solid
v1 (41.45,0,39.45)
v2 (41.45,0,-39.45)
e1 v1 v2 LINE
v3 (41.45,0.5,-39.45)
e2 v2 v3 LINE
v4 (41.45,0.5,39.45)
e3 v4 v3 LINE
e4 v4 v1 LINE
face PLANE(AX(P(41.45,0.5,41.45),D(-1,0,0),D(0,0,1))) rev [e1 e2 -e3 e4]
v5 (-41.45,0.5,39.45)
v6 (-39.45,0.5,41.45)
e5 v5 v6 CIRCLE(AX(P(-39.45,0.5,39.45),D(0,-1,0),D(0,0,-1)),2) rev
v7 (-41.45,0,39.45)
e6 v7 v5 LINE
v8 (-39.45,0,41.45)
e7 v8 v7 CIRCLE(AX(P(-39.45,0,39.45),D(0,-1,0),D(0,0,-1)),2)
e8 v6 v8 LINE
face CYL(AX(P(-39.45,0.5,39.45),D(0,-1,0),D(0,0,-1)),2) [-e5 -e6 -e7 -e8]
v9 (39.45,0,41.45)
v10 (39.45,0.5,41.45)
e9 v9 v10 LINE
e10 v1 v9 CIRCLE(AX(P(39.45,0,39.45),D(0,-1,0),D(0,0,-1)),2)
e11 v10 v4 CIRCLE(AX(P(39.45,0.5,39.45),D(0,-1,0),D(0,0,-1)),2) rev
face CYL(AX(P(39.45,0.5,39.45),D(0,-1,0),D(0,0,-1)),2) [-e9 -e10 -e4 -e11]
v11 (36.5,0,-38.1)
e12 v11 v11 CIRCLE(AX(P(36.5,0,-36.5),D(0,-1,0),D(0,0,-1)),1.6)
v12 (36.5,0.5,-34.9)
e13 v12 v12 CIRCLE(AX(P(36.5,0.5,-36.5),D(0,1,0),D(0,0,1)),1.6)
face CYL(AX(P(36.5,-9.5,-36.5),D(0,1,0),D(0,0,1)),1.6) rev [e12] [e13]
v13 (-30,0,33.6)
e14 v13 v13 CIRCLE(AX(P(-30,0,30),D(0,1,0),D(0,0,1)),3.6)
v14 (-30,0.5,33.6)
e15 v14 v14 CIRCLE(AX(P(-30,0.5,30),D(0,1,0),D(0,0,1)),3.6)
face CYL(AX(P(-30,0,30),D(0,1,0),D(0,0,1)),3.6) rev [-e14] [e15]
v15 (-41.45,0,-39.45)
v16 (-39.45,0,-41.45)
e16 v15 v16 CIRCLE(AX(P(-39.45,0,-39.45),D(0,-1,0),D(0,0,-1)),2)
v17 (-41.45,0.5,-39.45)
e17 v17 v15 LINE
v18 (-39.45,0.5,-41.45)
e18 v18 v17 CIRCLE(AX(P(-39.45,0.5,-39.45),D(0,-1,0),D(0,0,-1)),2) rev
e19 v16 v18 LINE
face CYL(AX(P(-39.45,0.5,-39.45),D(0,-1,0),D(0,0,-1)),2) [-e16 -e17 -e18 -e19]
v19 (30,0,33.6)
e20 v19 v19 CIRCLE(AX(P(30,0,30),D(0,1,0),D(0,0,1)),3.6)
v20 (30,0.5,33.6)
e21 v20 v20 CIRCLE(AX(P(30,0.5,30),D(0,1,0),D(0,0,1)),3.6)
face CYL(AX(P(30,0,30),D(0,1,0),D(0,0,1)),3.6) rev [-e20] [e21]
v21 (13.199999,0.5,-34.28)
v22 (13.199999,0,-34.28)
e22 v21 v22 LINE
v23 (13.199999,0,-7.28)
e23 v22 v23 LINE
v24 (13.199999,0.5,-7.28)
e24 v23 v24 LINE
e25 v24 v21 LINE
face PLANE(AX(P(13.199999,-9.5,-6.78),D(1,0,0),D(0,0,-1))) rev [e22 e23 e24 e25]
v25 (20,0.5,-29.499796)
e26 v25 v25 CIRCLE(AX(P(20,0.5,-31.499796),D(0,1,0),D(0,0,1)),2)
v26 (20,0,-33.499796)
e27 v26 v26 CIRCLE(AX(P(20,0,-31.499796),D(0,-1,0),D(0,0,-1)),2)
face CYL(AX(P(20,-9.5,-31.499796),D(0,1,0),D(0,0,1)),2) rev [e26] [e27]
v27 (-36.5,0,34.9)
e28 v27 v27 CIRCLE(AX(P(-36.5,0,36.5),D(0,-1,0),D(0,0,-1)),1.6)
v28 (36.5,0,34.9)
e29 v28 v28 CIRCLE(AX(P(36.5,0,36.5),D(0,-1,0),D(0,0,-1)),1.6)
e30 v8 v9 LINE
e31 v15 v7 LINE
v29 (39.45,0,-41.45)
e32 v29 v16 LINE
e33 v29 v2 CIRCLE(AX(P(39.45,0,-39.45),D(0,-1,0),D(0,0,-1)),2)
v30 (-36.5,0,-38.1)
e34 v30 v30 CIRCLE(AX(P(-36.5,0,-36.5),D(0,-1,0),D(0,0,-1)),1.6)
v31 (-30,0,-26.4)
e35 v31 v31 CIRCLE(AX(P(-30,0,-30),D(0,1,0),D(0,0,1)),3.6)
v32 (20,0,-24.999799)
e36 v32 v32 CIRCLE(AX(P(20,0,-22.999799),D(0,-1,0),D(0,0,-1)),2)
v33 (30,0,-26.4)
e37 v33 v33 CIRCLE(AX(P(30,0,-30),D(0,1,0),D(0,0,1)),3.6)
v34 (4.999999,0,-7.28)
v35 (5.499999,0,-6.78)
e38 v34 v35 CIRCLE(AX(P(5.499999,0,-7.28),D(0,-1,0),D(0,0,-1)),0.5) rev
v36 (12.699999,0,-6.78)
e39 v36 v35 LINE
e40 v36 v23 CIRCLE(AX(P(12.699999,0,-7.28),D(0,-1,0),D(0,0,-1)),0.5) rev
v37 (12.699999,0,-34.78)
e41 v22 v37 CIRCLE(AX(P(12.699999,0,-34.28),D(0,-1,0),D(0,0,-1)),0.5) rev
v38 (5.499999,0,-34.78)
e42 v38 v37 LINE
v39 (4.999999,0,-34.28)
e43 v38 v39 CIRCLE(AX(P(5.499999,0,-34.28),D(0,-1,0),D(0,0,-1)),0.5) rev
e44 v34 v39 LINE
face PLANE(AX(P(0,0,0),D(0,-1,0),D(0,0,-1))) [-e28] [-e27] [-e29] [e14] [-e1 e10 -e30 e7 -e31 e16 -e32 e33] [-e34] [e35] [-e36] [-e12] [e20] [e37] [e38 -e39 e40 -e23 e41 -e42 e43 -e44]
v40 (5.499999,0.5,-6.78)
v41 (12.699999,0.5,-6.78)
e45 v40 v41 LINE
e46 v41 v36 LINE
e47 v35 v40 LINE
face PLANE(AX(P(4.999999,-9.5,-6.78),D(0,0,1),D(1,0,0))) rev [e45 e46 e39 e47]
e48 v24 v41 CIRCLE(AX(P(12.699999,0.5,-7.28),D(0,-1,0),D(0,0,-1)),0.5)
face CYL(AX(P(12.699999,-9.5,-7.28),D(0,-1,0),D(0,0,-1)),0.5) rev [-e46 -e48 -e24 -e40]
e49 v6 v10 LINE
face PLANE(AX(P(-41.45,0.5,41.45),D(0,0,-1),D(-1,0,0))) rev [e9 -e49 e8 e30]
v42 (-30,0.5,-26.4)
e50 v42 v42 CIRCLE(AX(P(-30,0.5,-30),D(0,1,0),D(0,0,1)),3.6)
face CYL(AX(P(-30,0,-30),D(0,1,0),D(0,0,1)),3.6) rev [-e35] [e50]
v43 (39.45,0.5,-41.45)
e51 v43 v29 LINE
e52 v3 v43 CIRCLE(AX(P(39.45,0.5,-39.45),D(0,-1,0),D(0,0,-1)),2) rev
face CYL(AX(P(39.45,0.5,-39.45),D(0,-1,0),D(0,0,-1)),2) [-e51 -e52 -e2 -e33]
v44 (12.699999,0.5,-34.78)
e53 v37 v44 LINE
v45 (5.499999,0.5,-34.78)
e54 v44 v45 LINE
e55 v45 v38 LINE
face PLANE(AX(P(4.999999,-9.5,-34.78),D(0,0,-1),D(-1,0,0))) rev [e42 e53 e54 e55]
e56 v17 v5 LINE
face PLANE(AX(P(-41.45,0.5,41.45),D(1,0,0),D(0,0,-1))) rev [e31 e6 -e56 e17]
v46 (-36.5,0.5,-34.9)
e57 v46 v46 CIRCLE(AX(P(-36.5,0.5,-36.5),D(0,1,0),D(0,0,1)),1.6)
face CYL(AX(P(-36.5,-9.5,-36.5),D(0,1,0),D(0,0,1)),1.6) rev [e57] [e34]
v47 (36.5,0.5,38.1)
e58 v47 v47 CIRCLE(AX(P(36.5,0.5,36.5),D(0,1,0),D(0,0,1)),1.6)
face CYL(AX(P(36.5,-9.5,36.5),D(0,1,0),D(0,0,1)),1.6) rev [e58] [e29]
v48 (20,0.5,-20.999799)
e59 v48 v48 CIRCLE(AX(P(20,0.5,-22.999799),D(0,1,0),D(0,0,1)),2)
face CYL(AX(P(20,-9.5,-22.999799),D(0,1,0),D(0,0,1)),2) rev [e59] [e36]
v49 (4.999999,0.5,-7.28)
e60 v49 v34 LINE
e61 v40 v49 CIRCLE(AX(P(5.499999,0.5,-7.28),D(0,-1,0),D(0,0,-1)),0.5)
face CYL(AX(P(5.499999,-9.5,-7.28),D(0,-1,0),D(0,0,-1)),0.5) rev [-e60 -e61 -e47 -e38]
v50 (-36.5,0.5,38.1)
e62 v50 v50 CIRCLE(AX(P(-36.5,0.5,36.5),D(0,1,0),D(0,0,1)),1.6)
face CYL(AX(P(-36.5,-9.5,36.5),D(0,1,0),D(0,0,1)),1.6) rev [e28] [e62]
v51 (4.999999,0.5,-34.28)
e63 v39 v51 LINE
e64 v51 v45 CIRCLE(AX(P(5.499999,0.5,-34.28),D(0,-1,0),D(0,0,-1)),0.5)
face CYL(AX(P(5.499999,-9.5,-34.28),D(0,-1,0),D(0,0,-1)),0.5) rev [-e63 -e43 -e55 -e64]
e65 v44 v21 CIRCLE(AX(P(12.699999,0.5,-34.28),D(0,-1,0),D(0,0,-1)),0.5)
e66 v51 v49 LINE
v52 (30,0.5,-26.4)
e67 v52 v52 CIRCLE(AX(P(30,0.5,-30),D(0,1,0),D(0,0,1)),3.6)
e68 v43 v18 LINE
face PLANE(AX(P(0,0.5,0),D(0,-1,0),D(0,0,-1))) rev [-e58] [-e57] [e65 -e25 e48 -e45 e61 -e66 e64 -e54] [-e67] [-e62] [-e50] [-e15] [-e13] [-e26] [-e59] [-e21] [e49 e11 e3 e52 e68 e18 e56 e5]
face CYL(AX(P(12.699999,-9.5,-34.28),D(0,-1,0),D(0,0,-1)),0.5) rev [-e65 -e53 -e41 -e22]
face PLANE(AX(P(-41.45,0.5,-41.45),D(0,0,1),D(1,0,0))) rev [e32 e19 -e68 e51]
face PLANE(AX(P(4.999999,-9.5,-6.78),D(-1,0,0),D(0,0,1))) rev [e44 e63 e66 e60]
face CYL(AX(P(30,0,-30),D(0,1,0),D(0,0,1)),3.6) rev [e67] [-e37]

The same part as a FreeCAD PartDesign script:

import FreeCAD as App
import Part
import Sketcher
Q = App.Units.Quantity


def edges_at(feature, points):
    """Names of the edges that pass closest to the given points."""
    edges = feature.Shape.Edges
    near = lambda p: min(range(len(edges)), key=lambda i: edges[i].distToShape(Part.Vertex(*p))[0])
    return sorted({f"Edge{near(p) + 1}" for p in points})


def add_polygon(sketch, points):
    """Adds a closed chain of lines whose ends are joined by coincident constraints."""
    first, n = sketch.GeometryCount, len(points)
    for a, b in zip(points, points[1:] + points[:1]):
        sketch.addGeometry(Part.LineSegment(App.Vector(*a, 0), App.Vector(*b, 0)), False)
    for i in range(n):
        sketch.addConstraint(Sketcher.Constraint("Coincident", first + i, 2, first + (i + 1) % n, 1))

doc = App.newDocument("Part")
body = doc.addObject("PartDesign::Body", "Body")

# Sketch on XZ plane
sketch1 = body.newObject("Sketcher::SketchObject", "Sketch")
sketch1.AttachmentSupport = (doc.getObject("XZ_Plane"), [""])
sketch1.MapMode = "FlatFace"
add_polygon(sketch1, [(-41, -41), (-41, 41), (41, 41), (41, -41)])  # lines 0-3
sketch1.addConstraint([
    Sketcher.Constraint("Vertical", 0),
    Sketcher.Constraint("Horizontal", 1),
    Sketcher.Constraint("Vertical", 2),
    Sketcher.Constraint("Horizontal", 3),
    Sketcher.Constraint("Symmetric", 0, 2, 2, 2, -1, 1),
    Sketcher.Constraint("Equal", 3, 0),
    Sketcher.Constraint("DistanceX", 1, 1, 1, 2, Q("82.9 mm")),
])
pad1 = body.newObject("PartDesign::Pad", "Pad")
pad1.Profile = sketch1
pad1.Length = 0.5
pad1.Reversed = True

# Sketch on XZ plane
sketch2 = body.newObject("Sketcher::SketchObject", "Sketch001")
sketch2.AttachmentSupport = (doc.getObject("XZ_Plane"), [""])
sketch2.MapMode = "FlatFace"
sketch2.AttachmentOffset = App.Placement(App.Vector(0, 0, -0.5), App.Rotation())
sketch2.addGeometry([
    Part.Circle(App.Vector(-30, -30, 0), App.Vector(0, 0, 1), 3.6),
    Part.Circle(App.Vector(30, -30, 0), App.Vector(0, 0, 1), 3.6),
    Part.Circle(App.Vector(30, 30, 0), App.Vector(0, 0, 1), 3.6),
    Part.Circle(App.Vector(-30, 30, 0), App.Vector(0, 0, 1), 3.6),
], False)
sketch2.addConstraint([
    Sketcher.Constraint("Equal", 0, 1),
    Sketcher.Constraint("Equal", 1, 2),
    Sketcher.Constraint("Equal", 2, 3),
    Sketcher.Constraint("Symmetric", 0, 3, 2, 3, -1, 1),
    Sketcher.Constraint("Symmetric", 1, 3, 3, 3, -1, 1),
    Sketcher.Constraint("Symmetric", 0, 3, 1, 3, -2),
    Sketcher.Constraint("Diameter", 0, Q("7.2 mm")),
    Sketcher.Constraint("DistanceX", 0, 3, -1, 1, Q("30 mm")),
    Sketcher.Constraint("DistanceY", 0, 3, -1, 1, Q("30 mm")),
])
pocket1 = body.newObject("PartDesign::Pocket", "Pocket")
pocket1.Profile = sketch2
pocket1.Type = "ThroughAll"
pocket1.Reversed = True
doc.recompute()

fillet = body.newObject("PartDesign::Fillet", "Fillet")
fillet.Base = (pocket1, edges_at(pocket1, [
    (41.45, 0.25, 41.45),
    (-41.45, 0.25, 41.45),
    (-41.45, 0.25, -41.45),
    (41.45, 0.25, -41.45),
]))
fillet.Radius = 2

# Sketch on XZ plane
sketch3 = body.newObject("Sketcher::SketchObject", "Sketch002")
sketch3.AttachmentSupport = (doc.getObject("XZ_Plane"), [""])
sketch3.MapMode = "FlatFace"
sketch3.AttachmentOffset = App.Placement(App.Vector(0, 0, -0.5), App.Rotation())
sketch3.addGeometry([
    Part.Circle(App.Vector(-36.5, -36.5, 0), App.Vector(0, 0, 1), 1.6),
    Part.Circle(App.Vector(36.5, -36.5, 0), App.Vector(0, 0, 1), 1.6),
    Part.Circle(App.Vector(36.5, 36.5, 0), App.Vector(0, 0, 1), 1.6),
    Part.Circle(App.Vector(-36.5, 36.5, 0), App.Vector(0, 0, 1), 1.6),
], False)
sketch3.addConstraint([
    Sketcher.Constraint("Equal", 0, 1),
    Sketcher.Constraint("Equal", 1, 2),
    Sketcher.Constraint("Equal", 2, 3),
    Sketcher.Constraint("Symmetric", 0, 3, 2, 3, -1, 1),
    Sketcher.Constraint("Symmetric", 1, 3, 3, 3, -1, 1),
    Sketcher.Constraint("Symmetric", 0, 3, 1, 3, -2),
    Sketcher.Constraint("Diameter", 0, Q("3.2 mm")),
    Sketcher.Constraint("DistanceX", 0, 3, 1, 3, Q("73 mm")),
    Sketcher.Constraint("DistanceY", 1, 3, 2, 3, Q("73 mm")),
])
pocket2 = body.newObject("PartDesign::Pocket", "Pocket001")
pocket2.Profile = sketch3
pocket2.Length = 10
pocket2.Reversed = True

# Sketch on XZ plane
sketch4 = body.newObject("Sketcher::SketchObject", "Sketch003")
sketch4.AttachmentSupport = (doc.getObject("XZ_Plane"), [""])
sketch4.MapMode = "FlatFace"
sketch4.AttachmentOffset = App.Placement(App.Vector(0, 0, -0.5), App.Rotation())
sketch4.addGeometry([
    Part.Circle(App.Vector(20, -31.5, 0), App.Vector(0, 0, 1), 2),
    Part.Circle(App.Vector(20, -23, 0), App.Vector(0, 0, 1), 2),
], False)
sketch4.addConstraint([
    Sketcher.Constraint("Equal", 0, 1),
    Sketcher.Constraint("Vertical", 0, 3, 1, 3),
    Sketcher.Constraint("Diameter", 0, Q("4 mm")),
    Sketcher.Constraint("DistanceX", -1, 1, 0, 3, Q("20 mm")),
    Sketcher.Constraint("DistanceY", 1, 3, -1, 1, Q("22.999799 mm")),
    Sketcher.Constraint("DistanceY", 0, 3, -1, 1, Q("31.499796 mm")),
])
pocket3 = body.newObject("PartDesign::Pocket", "Pocket002")
pocket3.Profile = sketch4
pocket3.Length = 10
pocket3.Reversed = True

# Sketch on XZ plane
sketch5 = body.newObject("Sketcher::SketchObject", "Sketch004")
sketch5.AttachmentSupport = (doc.getObject("XZ_Plane"), [""])
sketch5.MapMode = "FlatFace"
sketch5.AttachmentOffset = App.Placement(App.Vector(0, 0, -0.5), App.Rotation())
add_polygon(sketch5, [(5, -35), (5, -7), (13, -7), (13, -35)])  # lines 0-3
sketch5.addConstraint([
    Sketcher.Constraint("Vertical", 0),
    Sketcher.Constraint("Horizontal", 1),
    Sketcher.Constraint("Vertical", 2),
    Sketcher.Constraint("Horizontal", 3),
    Sketcher.Constraint("DistanceY", 0, 1, 0, 2, Q("28 mm")),
    Sketcher.Constraint("DistanceX", 1, 1, 1, 2, Q("8.2 mm")),
    Sketcher.Constraint("DistanceX", -1, 1, 0, 2, Q("4.999999 mm")),
    Sketcher.Constraint("DistanceY", 0, 2, -1, 1, Q("6.78 mm")),
])
pocket4 = body.newObject("PartDesign::Pocket", "Pocket003")
pocket4.Profile = sketch5
pocket4.Length = 10
pocket4.Reversed = True
doc.recompute()

fillet2 = body.newObject("PartDesign::Fillet", "Fillet001")
fillet2.Base = (pocket4, edges_at(pocket4, [
    (13.2, 0.25, -34.78),
    (13.2, 0.25, -6.78),
    (5, 0.25, -6.78),
    (5, 0.25, -34.78),
]))
fillet2.Radius = 0.5

doc.recompute()
